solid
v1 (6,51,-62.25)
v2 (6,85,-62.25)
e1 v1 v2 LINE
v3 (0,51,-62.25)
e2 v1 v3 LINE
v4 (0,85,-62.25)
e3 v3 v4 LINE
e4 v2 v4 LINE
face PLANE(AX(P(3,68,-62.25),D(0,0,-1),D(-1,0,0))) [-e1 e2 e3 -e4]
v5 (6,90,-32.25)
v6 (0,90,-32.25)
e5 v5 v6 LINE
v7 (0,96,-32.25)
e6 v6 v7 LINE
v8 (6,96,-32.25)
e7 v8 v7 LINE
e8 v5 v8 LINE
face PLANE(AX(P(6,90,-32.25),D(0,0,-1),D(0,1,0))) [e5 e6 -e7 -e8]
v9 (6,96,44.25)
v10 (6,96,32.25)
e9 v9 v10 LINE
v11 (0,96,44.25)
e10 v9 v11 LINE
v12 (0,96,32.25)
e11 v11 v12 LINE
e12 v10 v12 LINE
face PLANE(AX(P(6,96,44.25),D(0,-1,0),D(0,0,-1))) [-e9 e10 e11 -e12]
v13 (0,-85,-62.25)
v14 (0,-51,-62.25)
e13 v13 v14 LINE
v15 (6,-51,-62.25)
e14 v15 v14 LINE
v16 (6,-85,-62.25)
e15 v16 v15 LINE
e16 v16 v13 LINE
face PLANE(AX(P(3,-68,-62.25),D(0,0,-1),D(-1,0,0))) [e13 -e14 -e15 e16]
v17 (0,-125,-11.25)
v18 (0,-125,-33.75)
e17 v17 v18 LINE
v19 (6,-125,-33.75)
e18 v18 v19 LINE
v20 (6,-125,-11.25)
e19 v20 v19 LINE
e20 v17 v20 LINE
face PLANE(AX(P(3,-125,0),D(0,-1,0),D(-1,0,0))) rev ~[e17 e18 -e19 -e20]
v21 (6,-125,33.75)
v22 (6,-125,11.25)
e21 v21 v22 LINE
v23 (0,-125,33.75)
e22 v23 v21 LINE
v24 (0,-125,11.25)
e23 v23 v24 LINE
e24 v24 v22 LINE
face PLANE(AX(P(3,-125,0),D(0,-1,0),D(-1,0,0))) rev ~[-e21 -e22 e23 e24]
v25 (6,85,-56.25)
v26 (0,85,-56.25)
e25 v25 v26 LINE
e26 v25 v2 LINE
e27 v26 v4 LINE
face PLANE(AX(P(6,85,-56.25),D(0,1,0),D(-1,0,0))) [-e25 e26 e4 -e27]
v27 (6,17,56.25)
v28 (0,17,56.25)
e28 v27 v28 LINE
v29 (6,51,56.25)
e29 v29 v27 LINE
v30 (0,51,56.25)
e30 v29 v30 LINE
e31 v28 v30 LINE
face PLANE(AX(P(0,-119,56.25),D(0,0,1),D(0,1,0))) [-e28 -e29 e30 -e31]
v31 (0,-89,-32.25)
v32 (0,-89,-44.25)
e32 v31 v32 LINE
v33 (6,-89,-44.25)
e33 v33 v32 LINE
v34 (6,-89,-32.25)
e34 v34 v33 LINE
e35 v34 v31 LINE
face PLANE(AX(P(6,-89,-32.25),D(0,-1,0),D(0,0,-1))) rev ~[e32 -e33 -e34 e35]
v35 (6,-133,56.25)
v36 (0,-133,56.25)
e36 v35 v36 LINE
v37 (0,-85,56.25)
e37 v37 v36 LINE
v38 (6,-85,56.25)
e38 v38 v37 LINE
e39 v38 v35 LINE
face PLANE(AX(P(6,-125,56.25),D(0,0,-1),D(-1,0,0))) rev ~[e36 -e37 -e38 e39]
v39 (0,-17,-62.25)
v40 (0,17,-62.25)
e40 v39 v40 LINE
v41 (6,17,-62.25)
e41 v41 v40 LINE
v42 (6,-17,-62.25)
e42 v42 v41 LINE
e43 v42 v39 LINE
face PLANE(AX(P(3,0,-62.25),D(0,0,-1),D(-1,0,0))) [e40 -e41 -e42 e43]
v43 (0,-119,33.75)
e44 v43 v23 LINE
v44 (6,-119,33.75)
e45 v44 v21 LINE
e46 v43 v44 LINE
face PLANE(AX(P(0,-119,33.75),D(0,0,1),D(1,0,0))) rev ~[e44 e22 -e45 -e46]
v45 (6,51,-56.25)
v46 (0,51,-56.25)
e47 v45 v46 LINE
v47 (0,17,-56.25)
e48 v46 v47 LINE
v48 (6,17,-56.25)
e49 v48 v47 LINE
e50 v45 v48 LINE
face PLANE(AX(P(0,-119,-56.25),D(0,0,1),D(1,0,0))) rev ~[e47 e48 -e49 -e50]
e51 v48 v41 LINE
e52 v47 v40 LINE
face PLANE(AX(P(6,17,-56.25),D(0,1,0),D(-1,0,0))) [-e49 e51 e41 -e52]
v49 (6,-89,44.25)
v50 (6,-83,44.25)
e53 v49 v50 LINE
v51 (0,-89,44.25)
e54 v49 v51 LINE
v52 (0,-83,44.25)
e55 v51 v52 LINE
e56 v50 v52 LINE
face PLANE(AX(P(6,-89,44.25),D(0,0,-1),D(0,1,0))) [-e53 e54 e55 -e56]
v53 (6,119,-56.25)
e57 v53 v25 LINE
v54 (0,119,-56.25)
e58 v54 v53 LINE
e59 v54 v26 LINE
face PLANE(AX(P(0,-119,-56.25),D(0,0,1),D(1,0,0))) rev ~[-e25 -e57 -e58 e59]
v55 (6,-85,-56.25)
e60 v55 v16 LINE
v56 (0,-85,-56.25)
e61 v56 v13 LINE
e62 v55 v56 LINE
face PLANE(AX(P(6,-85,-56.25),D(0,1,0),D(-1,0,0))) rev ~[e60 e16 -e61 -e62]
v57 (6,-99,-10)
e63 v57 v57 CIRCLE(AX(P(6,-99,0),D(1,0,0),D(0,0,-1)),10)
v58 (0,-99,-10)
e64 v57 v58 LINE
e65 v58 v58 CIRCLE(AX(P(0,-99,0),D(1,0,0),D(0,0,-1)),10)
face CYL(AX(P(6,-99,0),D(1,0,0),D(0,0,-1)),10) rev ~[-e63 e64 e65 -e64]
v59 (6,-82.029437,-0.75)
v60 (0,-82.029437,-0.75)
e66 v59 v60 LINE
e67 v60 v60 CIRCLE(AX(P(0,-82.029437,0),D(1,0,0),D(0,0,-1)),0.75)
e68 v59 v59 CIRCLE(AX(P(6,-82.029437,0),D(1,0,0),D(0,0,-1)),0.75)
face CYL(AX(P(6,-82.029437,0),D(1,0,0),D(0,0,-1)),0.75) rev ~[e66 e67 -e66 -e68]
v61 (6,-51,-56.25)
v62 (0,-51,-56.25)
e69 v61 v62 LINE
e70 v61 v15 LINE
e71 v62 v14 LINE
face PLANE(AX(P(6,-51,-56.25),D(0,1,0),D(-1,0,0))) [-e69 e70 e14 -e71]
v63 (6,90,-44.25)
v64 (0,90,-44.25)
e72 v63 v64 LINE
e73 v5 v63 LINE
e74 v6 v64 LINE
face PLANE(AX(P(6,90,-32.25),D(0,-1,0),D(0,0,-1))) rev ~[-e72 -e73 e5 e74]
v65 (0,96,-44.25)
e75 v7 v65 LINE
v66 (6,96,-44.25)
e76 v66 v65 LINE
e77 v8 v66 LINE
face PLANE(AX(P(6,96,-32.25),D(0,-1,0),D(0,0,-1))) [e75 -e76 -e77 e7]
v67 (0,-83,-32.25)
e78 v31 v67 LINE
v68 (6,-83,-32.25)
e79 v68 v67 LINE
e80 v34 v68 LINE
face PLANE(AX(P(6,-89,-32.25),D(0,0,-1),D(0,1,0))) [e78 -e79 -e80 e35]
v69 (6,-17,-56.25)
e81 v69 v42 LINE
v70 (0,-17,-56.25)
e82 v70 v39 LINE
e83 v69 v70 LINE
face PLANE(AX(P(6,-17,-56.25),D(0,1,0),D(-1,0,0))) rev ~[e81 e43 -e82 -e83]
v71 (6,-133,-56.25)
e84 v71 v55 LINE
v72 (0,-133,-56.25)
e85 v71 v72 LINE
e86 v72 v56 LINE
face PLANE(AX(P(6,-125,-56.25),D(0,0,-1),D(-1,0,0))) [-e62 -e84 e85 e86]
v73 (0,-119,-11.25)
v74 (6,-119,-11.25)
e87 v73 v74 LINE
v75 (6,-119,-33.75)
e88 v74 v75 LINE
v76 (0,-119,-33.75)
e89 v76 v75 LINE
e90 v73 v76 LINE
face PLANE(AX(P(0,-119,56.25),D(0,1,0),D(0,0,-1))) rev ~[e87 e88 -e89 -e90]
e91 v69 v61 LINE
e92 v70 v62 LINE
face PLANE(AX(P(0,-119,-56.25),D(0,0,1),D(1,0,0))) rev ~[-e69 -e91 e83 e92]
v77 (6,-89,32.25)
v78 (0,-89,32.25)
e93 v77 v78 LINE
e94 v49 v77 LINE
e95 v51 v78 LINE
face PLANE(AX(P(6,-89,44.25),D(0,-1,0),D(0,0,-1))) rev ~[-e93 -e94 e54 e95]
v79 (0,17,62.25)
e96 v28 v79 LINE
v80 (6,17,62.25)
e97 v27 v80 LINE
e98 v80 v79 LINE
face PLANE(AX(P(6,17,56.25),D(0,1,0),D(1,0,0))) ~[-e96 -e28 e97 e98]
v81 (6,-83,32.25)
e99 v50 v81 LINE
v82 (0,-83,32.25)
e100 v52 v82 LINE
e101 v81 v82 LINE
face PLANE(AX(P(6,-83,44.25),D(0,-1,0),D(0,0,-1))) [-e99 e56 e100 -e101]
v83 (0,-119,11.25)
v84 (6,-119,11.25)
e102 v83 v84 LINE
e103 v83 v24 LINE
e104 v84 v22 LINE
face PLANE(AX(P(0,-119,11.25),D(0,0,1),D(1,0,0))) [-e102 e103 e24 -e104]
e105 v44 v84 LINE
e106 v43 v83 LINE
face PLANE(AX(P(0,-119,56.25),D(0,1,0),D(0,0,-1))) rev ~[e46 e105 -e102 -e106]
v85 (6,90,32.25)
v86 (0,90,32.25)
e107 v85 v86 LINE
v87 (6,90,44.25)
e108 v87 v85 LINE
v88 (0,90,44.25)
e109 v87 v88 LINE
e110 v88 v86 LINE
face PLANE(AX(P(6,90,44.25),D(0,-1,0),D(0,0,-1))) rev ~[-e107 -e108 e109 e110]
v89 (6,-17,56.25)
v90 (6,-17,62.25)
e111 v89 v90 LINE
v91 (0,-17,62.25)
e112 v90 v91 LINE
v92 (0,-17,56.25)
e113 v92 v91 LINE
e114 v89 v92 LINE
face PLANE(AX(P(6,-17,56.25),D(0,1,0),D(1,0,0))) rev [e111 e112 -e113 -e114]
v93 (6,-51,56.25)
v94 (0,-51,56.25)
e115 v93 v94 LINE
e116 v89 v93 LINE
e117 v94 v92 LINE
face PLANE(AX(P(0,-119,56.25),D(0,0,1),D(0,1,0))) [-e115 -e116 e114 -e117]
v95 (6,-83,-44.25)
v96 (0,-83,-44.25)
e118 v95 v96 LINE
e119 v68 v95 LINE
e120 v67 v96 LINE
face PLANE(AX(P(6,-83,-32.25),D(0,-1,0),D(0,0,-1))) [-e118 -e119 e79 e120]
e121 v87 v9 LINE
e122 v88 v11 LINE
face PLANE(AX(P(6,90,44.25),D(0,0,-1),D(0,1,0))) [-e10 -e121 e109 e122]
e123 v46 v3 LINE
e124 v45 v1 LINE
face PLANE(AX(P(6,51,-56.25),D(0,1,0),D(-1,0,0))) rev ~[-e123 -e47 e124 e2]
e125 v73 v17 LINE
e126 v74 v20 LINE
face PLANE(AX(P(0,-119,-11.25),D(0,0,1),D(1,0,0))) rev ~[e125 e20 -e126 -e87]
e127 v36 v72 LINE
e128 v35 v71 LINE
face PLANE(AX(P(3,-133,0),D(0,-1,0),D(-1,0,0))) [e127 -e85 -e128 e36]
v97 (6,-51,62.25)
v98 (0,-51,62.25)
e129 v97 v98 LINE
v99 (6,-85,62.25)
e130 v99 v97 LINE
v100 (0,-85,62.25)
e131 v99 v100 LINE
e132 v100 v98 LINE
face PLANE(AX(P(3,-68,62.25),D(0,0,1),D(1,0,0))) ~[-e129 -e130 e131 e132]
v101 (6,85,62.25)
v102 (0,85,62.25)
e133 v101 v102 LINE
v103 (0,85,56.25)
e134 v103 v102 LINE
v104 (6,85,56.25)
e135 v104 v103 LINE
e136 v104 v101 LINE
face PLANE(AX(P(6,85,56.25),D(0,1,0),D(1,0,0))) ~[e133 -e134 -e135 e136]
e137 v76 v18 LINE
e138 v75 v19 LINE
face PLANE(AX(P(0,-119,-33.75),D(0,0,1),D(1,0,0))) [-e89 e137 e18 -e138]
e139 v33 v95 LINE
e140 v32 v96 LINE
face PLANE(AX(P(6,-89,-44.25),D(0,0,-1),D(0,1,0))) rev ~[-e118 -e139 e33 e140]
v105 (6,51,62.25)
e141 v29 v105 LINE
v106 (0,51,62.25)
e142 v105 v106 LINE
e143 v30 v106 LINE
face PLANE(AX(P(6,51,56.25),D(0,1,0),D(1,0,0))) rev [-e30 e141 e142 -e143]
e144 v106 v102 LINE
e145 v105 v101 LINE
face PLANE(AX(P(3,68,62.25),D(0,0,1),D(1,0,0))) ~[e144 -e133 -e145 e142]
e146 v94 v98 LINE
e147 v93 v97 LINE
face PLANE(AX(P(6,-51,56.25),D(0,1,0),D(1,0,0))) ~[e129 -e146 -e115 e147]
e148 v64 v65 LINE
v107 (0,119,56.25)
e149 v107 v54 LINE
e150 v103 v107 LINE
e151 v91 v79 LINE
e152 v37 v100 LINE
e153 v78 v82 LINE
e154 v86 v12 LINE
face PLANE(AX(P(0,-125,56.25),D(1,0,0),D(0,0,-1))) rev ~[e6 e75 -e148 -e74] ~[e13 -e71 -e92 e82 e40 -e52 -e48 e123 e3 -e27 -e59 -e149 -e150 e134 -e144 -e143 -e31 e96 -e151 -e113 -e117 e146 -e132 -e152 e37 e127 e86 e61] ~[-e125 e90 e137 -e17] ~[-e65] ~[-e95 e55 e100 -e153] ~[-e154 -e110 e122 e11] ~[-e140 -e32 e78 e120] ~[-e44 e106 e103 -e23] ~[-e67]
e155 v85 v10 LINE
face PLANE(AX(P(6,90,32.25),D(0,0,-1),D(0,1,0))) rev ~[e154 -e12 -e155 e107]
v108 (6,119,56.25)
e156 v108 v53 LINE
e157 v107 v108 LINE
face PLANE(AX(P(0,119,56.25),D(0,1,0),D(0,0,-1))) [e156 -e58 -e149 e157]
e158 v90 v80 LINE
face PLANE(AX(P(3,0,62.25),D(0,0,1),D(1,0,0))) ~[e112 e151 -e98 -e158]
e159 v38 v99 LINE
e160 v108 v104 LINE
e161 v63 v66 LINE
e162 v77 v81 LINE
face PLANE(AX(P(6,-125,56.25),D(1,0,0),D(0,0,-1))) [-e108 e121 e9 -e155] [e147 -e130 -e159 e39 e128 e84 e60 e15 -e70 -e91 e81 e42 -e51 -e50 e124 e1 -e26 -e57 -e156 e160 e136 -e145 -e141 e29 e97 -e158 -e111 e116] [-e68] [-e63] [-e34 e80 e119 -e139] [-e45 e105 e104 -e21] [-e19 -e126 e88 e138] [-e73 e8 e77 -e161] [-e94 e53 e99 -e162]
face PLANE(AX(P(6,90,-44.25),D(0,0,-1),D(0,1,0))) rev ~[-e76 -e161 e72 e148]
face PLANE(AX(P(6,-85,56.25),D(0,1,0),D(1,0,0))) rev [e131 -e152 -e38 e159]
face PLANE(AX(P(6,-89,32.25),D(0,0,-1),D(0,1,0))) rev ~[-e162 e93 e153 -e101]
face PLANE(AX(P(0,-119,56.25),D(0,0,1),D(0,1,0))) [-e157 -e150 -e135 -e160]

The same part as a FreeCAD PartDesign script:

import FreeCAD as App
import Part
import Sketcher

V = App.Vector
Q = App.Units.Quantity


def add_polygon(sketch, points):
    """Adds a closed chain of lines whose ends are joined by coincident constraints."""
    first, n = sketch.GeometryCount, len(points)
    for a, b in zip(points, points[1:] + points[:1]):
        sketch.addGeometry(Part.LineSegment(App.Vector(*a, 0), App.Vector(*b, 0)), False)
    for i in range(n):
        sketch.addConstraint(Sketcher.Constraint("Coincident", first + i, 2, first + (i + 1) % n, 1))

doc = App.newDocument("Part")
body = doc.addObject("PartDesign::Body", "Body")

# Sketch on YZ plane
sketch1 = body.newObject("Sketcher::SketchObject", "Sketch")
sketch1.AttachmentSupport = (doc.getObject("YZ_Plane"), [""])
sketch1.MapMode = "FlatFace"
add_polygon(sketch1, [(119, 56), (-119, 56), (-119, -56), (119, -56)])  # lines 0-3
sketch1.addConstraint([
    Sketcher.Constraint("Horizontal", 0),
    Sketcher.Constraint("Vertical", 1),
    Sketcher.Constraint("Horizontal", 2),
    Sketcher.Constraint("Vertical", 3),
    Sketcher.Constraint("Symmetric", 0, 2, 2, 2, -1, 1),
    Sketcher.Constraint("DistanceX", 0, 2, 0, 1, Q("238 mm")),
    Sketcher.Constraint("DistanceY", 1, 2, 1, 1, Q("112.5 mm")),
])
pad1 = body.newObject("PartDesign::Pad", "Pad")
pad1.Profile = sketch1
pad1.Length = 6

# Sketch on YZ plane
sketch2 = body.newObject("Sketcher::SketchObject", "Sketch001")
sketch2.AttachmentSupport = (doc.getObject("YZ_Plane"), [""])
sketch2.MapMode = "FlatFace"
sketch2.AttachmentOffset = App.Placement(V(0, 0, 6), App.Rotation())
sketch2.addGeometry([
    Part.Circle(V(-99, 0, 0), V(0, 0, 1), 10),
    Part.Circle(V(-82, 0, 0), V(0, 0, 1), 0.8),
], False)
sketch2.addConstraint([
    Sketcher.Constraint("PointOnObject", 0, 3, -1),
    Sketcher.Constraint("PointOnObject", 1, 3, -1),
    Sketcher.Constraint("Diameter", 0, Q("20 mm")),
    Sketcher.Constraint("Diameter", 1, Q("1.5 mm")),
    Sketcher.Constraint("DistanceX", 0, 3, -1, 1, Q("99 mm")),
    Sketcher.Constraint("DistanceX", 1, 3, -1, 1, Q("82.029437 mm")),
])
pocket1 = body.newObject("PartDesign::Pocket", "Pocket")
pocket1.Profile = sketch2
pocket1.Length = 6

# Sketch on YZ plane
sketch3 = body.newObject("Sketcher::SketchObject", "Sketch002")
sketch3.AttachmentSupport = (doc.getObject("YZ_Plane"), [""])
sketch3.MapMode = "FlatFace"
sketch3.AttachmentOffset = App.Placement(V(0, 0, 6), App.Rotation())
add_polygon(sketch3, [(-83, 44), (-89, 44), (-89, 32), (-83, 32)])  # lines 0-3
add_polygon(sketch3, [(-83, -32), (-89, -32), (-89, -44), (-83, -44)])  # lines 4-7
sketch3.addConstraint([
    Sketcher.Constraint("Horizontal", 0),
    Sketcher.Constraint("Vertical", 1),
    Sketcher.Constraint("Horizontal", 2),
    Sketcher.Constraint("Vertical", 3),
    Sketcher.Constraint("Horizontal", 4),
    Sketcher.Constraint("Vertical", 5),
    Sketcher.Constraint("Horizontal", 6),
    Sketcher.Constraint("Vertical", 7),
    Sketcher.Constraint("Symmetric", 1, 2, 4, 2, -1),
    Sketcher.Constraint("Symmetric", 3, 2, 6, 2, -1),
    Sketcher.Constraint("DistanceX", 0, 2, 0, 1, Q("6 mm")),
    Sketcher.Constraint("DistanceY", 1, 2, 1, 1, Q("12 mm")),
    Sketcher.Constraint("DistanceX", 0, 2, -1, 1, Q("89 mm")),
    Sketcher.Constraint("DistanceY", 4, 2, 1, 2, Q("64.5 mm")),
])
pocket2 = body.newObject("PartDesign::Pocket", "Pocket001")
pocket2.Profile = sketch3
pocket2.Length = 6

# Sketch on XZ plane
sketch4 = body.newObject("Sketcher::SketchObject", "Sketch003")
sketch4.AttachmentSupport = (doc.getObject("XZ_Plane"), [""])
sketch4.MapMode = "FlatFace"
sketch4.AttachmentOffset = App.Placement(V(0, 0, 119), App.Rotation())
add_polygon(sketch4, [(0, -34), (0, -56), (6, -56), (6, -34)])  # lines 0-3
add_polygon(sketch4, [(0, 11), (0, -11), (6, -11), (6, 11)])  # lines 4-7
add_polygon(sketch4, [(0, 56), (0, 34), (6, 34), (6, 56)])  # lines 8-11
sketch4.addConstraint([
    Sketcher.Constraint("Vertical", 0),
    Sketcher.Constraint("Horizontal", 1),
    Sketcher.Constraint("Vertical", 2),
    Sketcher.Constraint("Horizontal", 3),
    Sketcher.Constraint("Vertical", 4),
    Sketcher.Constraint("Horizontal", 5),
    Sketcher.Constraint("Vertical", 6),
    Sketcher.Constraint("Horizontal", 7),
    Sketcher.Constraint("Vertical", 8),
    Sketcher.Constraint("Horizontal", 9),
    Sketcher.Constraint("Vertical", 10),
    Sketcher.Constraint("Horizontal", 11),
    Sketcher.Constraint("Symmetric", 4, 2, 7, 2, -1, 1),
    Sketcher.Constraint("Symmetric", 3, 2, 8, 2, -1, 1),
    Sketcher.Constraint("Symmetric", 1, 2, 10, 2, -1),
    Sketcher.Constraint("PointOnObject", 0, 2, -2),
    Sketcher.Constraint("Vertical", 2, 2, 5, 2),
    Sketcher.Constraint("Equal", 2, 4),
    Sketcher.Constraint("DistanceX", 1, 1, 1, 2, Q("6 mm")),
    Sketcher.Constraint("DistanceY", 0, 2, 0, 1, Q("22.5 mm")),
    Sketcher.Constraint("DistanceY", 0, 2, 4, 2, Q("45 mm")),
])
pad2 = body.newObject("PartDesign::Pad", "Pad001")
pad2.Profile = sketch4
pad2.Length = 6

# Sketch on YZ plane
sketch5 = body.newObject("Sketcher::SketchObject", "Sketch004")
sketch5.AttachmentSupport = (doc.getObject("YZ_Plane"), [""])
sketch5.MapMode = "FlatFace"
sketch5.AttachmentOffset = App.Placement(V(0, 0, 6), App.Rotation())
add_polygon(sketch5, [(96, 44), (90, 44), (90, 32), (96, 32)])  # lines 0-3
add_polygon(sketch5, [(96, -32), (90, -32), (90, -44), (96, -44)])  # lines 4-7
sketch5.addConstraint([
    Sketcher.Constraint("Horizontal", 0),
    Sketcher.Constraint("Vertical", 1),
    Sketcher.Constraint("Horizontal", 2),
    Sketcher.Constraint("Vertical", 3),
    Sketcher.Constraint("Horizontal", 4),
    Sketcher.Constraint("Vertical", 5),
    Sketcher.Constraint("Horizontal", 6),
    Sketcher.Constraint("Vertical", 7),
    Sketcher.Constraint("Symmetric", 1, 2, 4, 2, -1),
    Sketcher.Constraint("Symmetric", 3, 2, 6, 2, -1),
    Sketcher.Constraint("DistanceX", 0, 2, 0, 1, Q("6 mm")),
    Sketcher.Constraint("DistanceY", 1, 2, 1, 1, Q("12 mm")),
    Sketcher.Constraint("DistanceX", -1, 1, 0, 2, Q("90 mm")),
    Sketcher.Constraint("DistanceY", 4, 2, 1, 2, Q("64.5 mm")),
])
pocket3 = body.newObject("PartDesign::Pocket", "Pocket002")
pocket3.Profile = sketch5
pocket3.Length = 6

# Sketch on XY plane
sketch6 = body.newObject("Sketcher::SketchObject", "Sketch005")
sketch6.AttachmentSupport = (doc.getObject("XY_Plane"), [""])
sketch6.MapMode = "FlatFace"
sketch6.AttachmentOffset = App.Placement(V(0, 0, -56.25), App.Rotation())
add_polygon(sketch6, [(6, 85), (6, 51), (0, 51), (0, 85)])  # lines 0-3
add_polygon(sketch6, [(6, 17), (6, -17), (0, -17), (0, 17)])  # lines 4-7
add_polygon(sketch6, [(6, -51), (6, -85), (0, -85), (0, -51)])  # lines 8-11
sketch6.addConstraint([
    Sketcher.Constraint("Vertical", 0),
    Sketcher.Constraint("Horizontal", 1),
    Sketcher.Constraint("Vertical", 2),
    Sketcher.Constraint("Horizontal", 3),
    Sketcher.Constraint("Vertical", 4),
    Sketcher.Constraint("Horizontal", 5),
    Sketcher.Constraint("Vertical", 6),
    Sketcher.Constraint("Horizontal", 7),
    Sketcher.Constraint("Vertical", 8),
    Sketcher.Constraint("Horizontal", 9),
    Sketcher.Constraint("Vertical", 10),
    Sketcher.Constraint("Horizontal", 11),
    Sketcher.Constraint("Symmetric", 5, 2, 6, 2, -1, 1),
    Sketcher.Constraint("Symmetric", 2, 2, 9, 2, -1, 1),
    Sketcher.Constraint("Symmetric", 1, 2, 10, 2, -1),
    Sketcher.Constraint("Vertical", 3, 2, 4, 2),
    Sketcher.Constraint("Vertical", 7, 2, 8, 2),
    Sketcher.Constraint("Equal", 2, 4),
    Sketcher.Constraint("DistanceX", 1, 2, 1, 1, Q("6 mm")),
    Sketcher.Constraint("DistanceY", 0, 2, 0, 1, Q("34 mm")),
    Sketcher.Constraint("DistanceY", -1, 1, 0, 2, Q("51 mm")),
])
pad3 = body.newObject("PartDesign::Pad", "Pad002")
pad3.Profile = sketch6
pad3.Length = 6
pad3.Reversed = True
doc.recompute()

mirrored = body.newObject("PartDesign::Mirrored", "Mirrored")
mirrored.Originals = [pad3]
mirrored.MirrorPlane = (doc.getObject("XY_Plane"), [""])
body.Tip = mirrored

# Sketch on XZ plane
sketch7 = body.newObject("Sketcher::SketchObject", "Sketch006")
sketch7.AttachmentSupport = (doc.getObject("XZ_Plane"), [""])
sketch7.MapMode = "FlatFace"
sketch7.AttachmentOffset = App.Placement(V(0, 0, 125), App.Rotation())
add_polygon(sketch7, [(6, -56), (6, 56), (0, 56), (0, -56)])  # lines 0-3
sketch7.addConstraint([
    Sketcher.Constraint("Vertical", 0),
    Sketcher.Constraint("Horizontal", 1),
    Sketcher.Constraint("Vertical", 2),
    Sketcher.Constraint("Horizontal", 3),
    Sketcher.Constraint("Symmetric", 1, 2, 2, 2, -1, 1),
    Sketcher.Constraint("DistanceX", 1, 2, 1, 1, Q("6 mm")),
    Sketcher.Constraint("DistanceY", 0, 1, 0, 2, Q("112.5 mm")),
])
pad4 = body.newObject("PartDesign::Pad", "Pad003")
pad4.Profile = sketch7
pad4.Length = 8

doc.recompute()
